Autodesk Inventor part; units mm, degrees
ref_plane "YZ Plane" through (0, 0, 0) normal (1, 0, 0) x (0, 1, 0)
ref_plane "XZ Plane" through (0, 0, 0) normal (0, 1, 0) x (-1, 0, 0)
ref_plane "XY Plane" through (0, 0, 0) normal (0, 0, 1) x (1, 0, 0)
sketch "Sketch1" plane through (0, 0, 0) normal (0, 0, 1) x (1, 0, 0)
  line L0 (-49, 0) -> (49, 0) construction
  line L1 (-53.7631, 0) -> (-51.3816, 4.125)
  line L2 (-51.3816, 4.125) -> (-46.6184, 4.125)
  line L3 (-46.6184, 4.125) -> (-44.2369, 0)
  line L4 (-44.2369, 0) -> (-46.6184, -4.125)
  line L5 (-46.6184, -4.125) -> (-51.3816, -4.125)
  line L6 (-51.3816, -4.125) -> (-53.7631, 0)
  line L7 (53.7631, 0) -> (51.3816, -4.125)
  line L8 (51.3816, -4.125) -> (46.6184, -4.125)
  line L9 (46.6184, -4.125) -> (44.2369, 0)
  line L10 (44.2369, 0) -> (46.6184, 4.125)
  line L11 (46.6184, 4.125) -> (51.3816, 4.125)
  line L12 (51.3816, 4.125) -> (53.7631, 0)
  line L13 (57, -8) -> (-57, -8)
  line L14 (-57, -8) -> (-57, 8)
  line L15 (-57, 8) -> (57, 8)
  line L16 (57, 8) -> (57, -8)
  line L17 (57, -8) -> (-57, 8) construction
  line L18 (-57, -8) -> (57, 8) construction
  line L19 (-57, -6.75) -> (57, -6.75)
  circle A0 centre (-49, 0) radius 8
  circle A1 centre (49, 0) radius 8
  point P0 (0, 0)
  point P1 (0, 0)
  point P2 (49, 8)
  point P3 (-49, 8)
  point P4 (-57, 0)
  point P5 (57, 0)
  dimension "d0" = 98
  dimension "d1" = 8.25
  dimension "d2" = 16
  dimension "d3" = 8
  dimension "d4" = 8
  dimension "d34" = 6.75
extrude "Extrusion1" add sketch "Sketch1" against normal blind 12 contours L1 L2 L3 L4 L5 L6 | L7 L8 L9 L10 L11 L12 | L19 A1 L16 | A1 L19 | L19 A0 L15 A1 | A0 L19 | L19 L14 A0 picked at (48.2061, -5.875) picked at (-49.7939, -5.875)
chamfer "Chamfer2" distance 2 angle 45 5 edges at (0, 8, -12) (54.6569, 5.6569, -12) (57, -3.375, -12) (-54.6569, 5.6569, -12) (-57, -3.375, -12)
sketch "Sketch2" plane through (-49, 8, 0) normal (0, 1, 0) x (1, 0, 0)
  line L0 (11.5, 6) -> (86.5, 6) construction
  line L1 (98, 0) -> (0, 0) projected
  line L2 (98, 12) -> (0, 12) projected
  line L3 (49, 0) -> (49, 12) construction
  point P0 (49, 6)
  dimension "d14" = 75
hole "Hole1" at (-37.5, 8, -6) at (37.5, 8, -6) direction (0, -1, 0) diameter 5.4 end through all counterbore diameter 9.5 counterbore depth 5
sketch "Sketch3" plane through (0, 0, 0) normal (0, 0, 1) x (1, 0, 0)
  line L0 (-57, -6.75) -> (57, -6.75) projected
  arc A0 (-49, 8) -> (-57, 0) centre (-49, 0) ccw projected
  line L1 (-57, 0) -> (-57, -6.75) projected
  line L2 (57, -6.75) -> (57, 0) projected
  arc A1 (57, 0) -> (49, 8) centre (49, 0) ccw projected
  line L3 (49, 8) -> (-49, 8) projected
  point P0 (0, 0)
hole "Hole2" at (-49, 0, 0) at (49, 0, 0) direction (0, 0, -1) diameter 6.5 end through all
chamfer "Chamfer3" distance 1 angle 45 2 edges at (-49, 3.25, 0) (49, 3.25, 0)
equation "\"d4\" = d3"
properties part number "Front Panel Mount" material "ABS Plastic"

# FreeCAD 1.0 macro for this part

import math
import FreeCAD as App
import Part
import Sketcher
from FreeCAD import Vector
Q = App.Units.Quantity


def edges_at(feature, points):
    """Names of the edges that pass closest to the given points."""
    edges = feature.Shape.Edges
    near = lambda p: min(range(len(edges)), key=lambda i: edges[i].distToShape(Part.Vertex(*p))[0])
    return sorted({f"Edge{near(p) + 1}" for p in points})

doc = App.newDocument("Part")
body = doc.addObject("PartDesign::Body", "Body")

# Sketch on XY plane
sketch1 = doc.addObject("Sketcher::SketchObject", "Sketch")
body.addObject(sketch1)
sketch1.AttachmentSupport = (doc.XY_Plane, [""])
sketch1.MapMode = "FlatFace"
sketch1.addGeometry(Part.ArcOfCircle(Part.Circle(Vector(-49, 0, 0), Vector(0, 0, 1), 8), math.radians(90), math.radians(180)), False)
sketch1.addGeometry(Part.LineSegment(Vector(-57, 0, 0), Vector(-57, -7, 0)), False)
sketch1.addGeometry(Part.LineSegment(Vector(-57, -7, 0), Vector(57, -7, 0)), False)
sketch1.addGeometry(Part.LineSegment(Vector(57, -7, 0), Vector(57, 0, 0)), False)
sketch1.addGeometry(Part.ArcOfCircle(Part.Circle(Vector(49, 0, 0), Vector(0, 0, 1), 8), math.radians(0), math.radians(90)), False)
sketch1.addGeometry(Part.LineSegment(Vector(49, 8, 0), Vector(-49, 8, 0)), False)
sketch1.addConstraint(Sketcher.Constraint("Tangent", 0, 2, 1, 1))
sketch1.addConstraint(Sketcher.Constraint("Coincident", 1, 2, 2, 1))
sketch1.addConstraint(Sketcher.Constraint("Coincident", 2, 2, 3, 1))
sketch1.addConstraint(Sketcher.Constraint("Tangent", 3, 2, 4, 1))
sketch1.addConstraint(Sketcher.Constraint("Tangent", 4, 2, 5, 1))
sketch1.addConstraint(Sketcher.Constraint("Tangent", 5, 2, 0, 1))
sketch1.addConstraint(Sketcher.Constraint("Vertical", 1))
sketch1.addConstraint(Sketcher.Constraint("Horizontal", 2))
sketch1.addConstraint(Sketcher.Constraint("Vertical", 3))
sketch1.addConstraint(Sketcher.Constraint("Horizontal", 5))
sketch1.addConstraint(Sketcher.Constraint("Equal", 0, 4))
sketch1.addConstraint(Sketcher.Constraint("Symmetric", 0, 3, 4, 3, -1, 1))
sketch1.addConstraint(Sketcher.Constraint("Radius", 0, Q("8 mm")))
sketch1.addConstraint(Sketcher.Constraint("DistanceX", 5, 2, 5, 1, Q("98 mm")))
sketch1.addConstraint(Sketcher.Constraint("DistanceY", 1, 2, 1, 1, Q("6.75 mm")))
pad1 = doc.addObject("PartDesign::Pad", "Pad")
body.addObject(pad1)
pad1.Profile = sketch1
pad1.Length = 12
pad1.Reversed = True
doc.recompute()

chamfer = doc.addObject("PartDesign::Chamfer", "Chamfer")
body.addObject(chamfer)
chamfer.Base = (pad1, edges_at(pad1, [
    (0, 8, -12),
    (54.657, 5.657, -12),
    (57, -3.375, -12),
    (-54.657, 5.657, -12),
    (-57, -3.375, -12),
]))
chamfer.Size = 2

# Sketch on XZ plane
sketch2 = doc.addObject("Sketcher::SketchObject", "Sketch001")
body.addObject(sketch2)
sketch2.AttachmentSupport = (doc.XZ_Plane, [""])
sketch2.MapMode = "FlatFace"
sketch2.AttachmentOffset = App.Placement(Vector(0, 0, -8), App.Rotation())
sketch2.addGeometry(Part.Circle(Vector(-37.5, -6, 0), Vector(0, 0, 1), 2.7), False)
sketch2.addGeometry(Part.Circle(Vector(37.5, -6, 0), Vector(0, 0, 1), 2.7), False)
sketch2.addConstraint(Sketcher.Constraint("Equal", 0, 1))
sketch2.addConstraint(Sketcher.Constraint("Symmetric", 0, 3, 1, 3, -2))
sketch2.addConstraint(Sketcher.Constraint("Diameter", 0, Q("5.4 mm")))
sketch2.addConstraint(Sketcher.Constraint("DistanceY", 0, 3, -1, 1, Q("6 mm")))
sketch2.addConstraint(Sketcher.Constraint("DistanceX", 0, 3, 1, 3, Q("75 mm")))
doc.recompute()
hole = doc.addObject("PartDesign::Hole", "Hole")
body.addObject(hole)
hole.Profile = sketch2
hole.ThreadType = "None"
hole.Diameter = 5.4
hole.DepthType = "ThroughAll"
hole.HoleCutType = "Counterbore"
hole.HoleCutDiameter = 9.5
hole.HoleCutDepth = 5
hole.Reversed = True

# Sketch on XY plane
sketch3 = doc.addObject("Sketcher::SketchObject", "Sketch002")
body.addObject(sketch3)
sketch3.AttachmentSupport = (doc.XY_Plane, [""])
sketch3.MapMode = "FlatFace"
sketch3.addGeometry(Part.Circle(Vector(-49, 0, 0), Vector(0, 0, 1), 3.2), False)
sketch3.addGeometry(Part.Circle(Vector(49, 0, 0), Vector(0, 0, 1), 3.2), False)
sketch3.addConstraint(Sketcher.Constraint("Equal", 0, 1))
sketch3.addConstraint(Sketcher.Constraint("Symmetric", 0, 3, 1, 3, -1, 1))
sketch3.addConstraint(Sketcher.Constraint("PointOnObject", 0, 3, -1))
sketch3.addConstraint(Sketcher.Constraint("Diameter", 0, Q("6.5 mm")))
sketch3.addConstraint(Sketcher.Constraint("DistanceX", 0, 3, -1, 1, Q("49 mm")))
doc.recompute()
hole2 = doc.addObject("PartDesign::Hole", "Hole001")
body.addObject(hole2)
hole2.Profile = sketch3
hole2.ThreadType = "None"
hole2.Diameter = 6.5
hole2.DepthType = "ThroughAll"
doc.recompute()

chamfer2 = doc.addObject("PartDesign::Chamfer", "Chamfer001")
body.addObject(chamfer2)
chamfer2.Base = (hole2, edges_at(hole2, [(-49, 3.25, 0), (49, 3.25, 0)]))
chamfer2.Size = 1

doc.recompute()
